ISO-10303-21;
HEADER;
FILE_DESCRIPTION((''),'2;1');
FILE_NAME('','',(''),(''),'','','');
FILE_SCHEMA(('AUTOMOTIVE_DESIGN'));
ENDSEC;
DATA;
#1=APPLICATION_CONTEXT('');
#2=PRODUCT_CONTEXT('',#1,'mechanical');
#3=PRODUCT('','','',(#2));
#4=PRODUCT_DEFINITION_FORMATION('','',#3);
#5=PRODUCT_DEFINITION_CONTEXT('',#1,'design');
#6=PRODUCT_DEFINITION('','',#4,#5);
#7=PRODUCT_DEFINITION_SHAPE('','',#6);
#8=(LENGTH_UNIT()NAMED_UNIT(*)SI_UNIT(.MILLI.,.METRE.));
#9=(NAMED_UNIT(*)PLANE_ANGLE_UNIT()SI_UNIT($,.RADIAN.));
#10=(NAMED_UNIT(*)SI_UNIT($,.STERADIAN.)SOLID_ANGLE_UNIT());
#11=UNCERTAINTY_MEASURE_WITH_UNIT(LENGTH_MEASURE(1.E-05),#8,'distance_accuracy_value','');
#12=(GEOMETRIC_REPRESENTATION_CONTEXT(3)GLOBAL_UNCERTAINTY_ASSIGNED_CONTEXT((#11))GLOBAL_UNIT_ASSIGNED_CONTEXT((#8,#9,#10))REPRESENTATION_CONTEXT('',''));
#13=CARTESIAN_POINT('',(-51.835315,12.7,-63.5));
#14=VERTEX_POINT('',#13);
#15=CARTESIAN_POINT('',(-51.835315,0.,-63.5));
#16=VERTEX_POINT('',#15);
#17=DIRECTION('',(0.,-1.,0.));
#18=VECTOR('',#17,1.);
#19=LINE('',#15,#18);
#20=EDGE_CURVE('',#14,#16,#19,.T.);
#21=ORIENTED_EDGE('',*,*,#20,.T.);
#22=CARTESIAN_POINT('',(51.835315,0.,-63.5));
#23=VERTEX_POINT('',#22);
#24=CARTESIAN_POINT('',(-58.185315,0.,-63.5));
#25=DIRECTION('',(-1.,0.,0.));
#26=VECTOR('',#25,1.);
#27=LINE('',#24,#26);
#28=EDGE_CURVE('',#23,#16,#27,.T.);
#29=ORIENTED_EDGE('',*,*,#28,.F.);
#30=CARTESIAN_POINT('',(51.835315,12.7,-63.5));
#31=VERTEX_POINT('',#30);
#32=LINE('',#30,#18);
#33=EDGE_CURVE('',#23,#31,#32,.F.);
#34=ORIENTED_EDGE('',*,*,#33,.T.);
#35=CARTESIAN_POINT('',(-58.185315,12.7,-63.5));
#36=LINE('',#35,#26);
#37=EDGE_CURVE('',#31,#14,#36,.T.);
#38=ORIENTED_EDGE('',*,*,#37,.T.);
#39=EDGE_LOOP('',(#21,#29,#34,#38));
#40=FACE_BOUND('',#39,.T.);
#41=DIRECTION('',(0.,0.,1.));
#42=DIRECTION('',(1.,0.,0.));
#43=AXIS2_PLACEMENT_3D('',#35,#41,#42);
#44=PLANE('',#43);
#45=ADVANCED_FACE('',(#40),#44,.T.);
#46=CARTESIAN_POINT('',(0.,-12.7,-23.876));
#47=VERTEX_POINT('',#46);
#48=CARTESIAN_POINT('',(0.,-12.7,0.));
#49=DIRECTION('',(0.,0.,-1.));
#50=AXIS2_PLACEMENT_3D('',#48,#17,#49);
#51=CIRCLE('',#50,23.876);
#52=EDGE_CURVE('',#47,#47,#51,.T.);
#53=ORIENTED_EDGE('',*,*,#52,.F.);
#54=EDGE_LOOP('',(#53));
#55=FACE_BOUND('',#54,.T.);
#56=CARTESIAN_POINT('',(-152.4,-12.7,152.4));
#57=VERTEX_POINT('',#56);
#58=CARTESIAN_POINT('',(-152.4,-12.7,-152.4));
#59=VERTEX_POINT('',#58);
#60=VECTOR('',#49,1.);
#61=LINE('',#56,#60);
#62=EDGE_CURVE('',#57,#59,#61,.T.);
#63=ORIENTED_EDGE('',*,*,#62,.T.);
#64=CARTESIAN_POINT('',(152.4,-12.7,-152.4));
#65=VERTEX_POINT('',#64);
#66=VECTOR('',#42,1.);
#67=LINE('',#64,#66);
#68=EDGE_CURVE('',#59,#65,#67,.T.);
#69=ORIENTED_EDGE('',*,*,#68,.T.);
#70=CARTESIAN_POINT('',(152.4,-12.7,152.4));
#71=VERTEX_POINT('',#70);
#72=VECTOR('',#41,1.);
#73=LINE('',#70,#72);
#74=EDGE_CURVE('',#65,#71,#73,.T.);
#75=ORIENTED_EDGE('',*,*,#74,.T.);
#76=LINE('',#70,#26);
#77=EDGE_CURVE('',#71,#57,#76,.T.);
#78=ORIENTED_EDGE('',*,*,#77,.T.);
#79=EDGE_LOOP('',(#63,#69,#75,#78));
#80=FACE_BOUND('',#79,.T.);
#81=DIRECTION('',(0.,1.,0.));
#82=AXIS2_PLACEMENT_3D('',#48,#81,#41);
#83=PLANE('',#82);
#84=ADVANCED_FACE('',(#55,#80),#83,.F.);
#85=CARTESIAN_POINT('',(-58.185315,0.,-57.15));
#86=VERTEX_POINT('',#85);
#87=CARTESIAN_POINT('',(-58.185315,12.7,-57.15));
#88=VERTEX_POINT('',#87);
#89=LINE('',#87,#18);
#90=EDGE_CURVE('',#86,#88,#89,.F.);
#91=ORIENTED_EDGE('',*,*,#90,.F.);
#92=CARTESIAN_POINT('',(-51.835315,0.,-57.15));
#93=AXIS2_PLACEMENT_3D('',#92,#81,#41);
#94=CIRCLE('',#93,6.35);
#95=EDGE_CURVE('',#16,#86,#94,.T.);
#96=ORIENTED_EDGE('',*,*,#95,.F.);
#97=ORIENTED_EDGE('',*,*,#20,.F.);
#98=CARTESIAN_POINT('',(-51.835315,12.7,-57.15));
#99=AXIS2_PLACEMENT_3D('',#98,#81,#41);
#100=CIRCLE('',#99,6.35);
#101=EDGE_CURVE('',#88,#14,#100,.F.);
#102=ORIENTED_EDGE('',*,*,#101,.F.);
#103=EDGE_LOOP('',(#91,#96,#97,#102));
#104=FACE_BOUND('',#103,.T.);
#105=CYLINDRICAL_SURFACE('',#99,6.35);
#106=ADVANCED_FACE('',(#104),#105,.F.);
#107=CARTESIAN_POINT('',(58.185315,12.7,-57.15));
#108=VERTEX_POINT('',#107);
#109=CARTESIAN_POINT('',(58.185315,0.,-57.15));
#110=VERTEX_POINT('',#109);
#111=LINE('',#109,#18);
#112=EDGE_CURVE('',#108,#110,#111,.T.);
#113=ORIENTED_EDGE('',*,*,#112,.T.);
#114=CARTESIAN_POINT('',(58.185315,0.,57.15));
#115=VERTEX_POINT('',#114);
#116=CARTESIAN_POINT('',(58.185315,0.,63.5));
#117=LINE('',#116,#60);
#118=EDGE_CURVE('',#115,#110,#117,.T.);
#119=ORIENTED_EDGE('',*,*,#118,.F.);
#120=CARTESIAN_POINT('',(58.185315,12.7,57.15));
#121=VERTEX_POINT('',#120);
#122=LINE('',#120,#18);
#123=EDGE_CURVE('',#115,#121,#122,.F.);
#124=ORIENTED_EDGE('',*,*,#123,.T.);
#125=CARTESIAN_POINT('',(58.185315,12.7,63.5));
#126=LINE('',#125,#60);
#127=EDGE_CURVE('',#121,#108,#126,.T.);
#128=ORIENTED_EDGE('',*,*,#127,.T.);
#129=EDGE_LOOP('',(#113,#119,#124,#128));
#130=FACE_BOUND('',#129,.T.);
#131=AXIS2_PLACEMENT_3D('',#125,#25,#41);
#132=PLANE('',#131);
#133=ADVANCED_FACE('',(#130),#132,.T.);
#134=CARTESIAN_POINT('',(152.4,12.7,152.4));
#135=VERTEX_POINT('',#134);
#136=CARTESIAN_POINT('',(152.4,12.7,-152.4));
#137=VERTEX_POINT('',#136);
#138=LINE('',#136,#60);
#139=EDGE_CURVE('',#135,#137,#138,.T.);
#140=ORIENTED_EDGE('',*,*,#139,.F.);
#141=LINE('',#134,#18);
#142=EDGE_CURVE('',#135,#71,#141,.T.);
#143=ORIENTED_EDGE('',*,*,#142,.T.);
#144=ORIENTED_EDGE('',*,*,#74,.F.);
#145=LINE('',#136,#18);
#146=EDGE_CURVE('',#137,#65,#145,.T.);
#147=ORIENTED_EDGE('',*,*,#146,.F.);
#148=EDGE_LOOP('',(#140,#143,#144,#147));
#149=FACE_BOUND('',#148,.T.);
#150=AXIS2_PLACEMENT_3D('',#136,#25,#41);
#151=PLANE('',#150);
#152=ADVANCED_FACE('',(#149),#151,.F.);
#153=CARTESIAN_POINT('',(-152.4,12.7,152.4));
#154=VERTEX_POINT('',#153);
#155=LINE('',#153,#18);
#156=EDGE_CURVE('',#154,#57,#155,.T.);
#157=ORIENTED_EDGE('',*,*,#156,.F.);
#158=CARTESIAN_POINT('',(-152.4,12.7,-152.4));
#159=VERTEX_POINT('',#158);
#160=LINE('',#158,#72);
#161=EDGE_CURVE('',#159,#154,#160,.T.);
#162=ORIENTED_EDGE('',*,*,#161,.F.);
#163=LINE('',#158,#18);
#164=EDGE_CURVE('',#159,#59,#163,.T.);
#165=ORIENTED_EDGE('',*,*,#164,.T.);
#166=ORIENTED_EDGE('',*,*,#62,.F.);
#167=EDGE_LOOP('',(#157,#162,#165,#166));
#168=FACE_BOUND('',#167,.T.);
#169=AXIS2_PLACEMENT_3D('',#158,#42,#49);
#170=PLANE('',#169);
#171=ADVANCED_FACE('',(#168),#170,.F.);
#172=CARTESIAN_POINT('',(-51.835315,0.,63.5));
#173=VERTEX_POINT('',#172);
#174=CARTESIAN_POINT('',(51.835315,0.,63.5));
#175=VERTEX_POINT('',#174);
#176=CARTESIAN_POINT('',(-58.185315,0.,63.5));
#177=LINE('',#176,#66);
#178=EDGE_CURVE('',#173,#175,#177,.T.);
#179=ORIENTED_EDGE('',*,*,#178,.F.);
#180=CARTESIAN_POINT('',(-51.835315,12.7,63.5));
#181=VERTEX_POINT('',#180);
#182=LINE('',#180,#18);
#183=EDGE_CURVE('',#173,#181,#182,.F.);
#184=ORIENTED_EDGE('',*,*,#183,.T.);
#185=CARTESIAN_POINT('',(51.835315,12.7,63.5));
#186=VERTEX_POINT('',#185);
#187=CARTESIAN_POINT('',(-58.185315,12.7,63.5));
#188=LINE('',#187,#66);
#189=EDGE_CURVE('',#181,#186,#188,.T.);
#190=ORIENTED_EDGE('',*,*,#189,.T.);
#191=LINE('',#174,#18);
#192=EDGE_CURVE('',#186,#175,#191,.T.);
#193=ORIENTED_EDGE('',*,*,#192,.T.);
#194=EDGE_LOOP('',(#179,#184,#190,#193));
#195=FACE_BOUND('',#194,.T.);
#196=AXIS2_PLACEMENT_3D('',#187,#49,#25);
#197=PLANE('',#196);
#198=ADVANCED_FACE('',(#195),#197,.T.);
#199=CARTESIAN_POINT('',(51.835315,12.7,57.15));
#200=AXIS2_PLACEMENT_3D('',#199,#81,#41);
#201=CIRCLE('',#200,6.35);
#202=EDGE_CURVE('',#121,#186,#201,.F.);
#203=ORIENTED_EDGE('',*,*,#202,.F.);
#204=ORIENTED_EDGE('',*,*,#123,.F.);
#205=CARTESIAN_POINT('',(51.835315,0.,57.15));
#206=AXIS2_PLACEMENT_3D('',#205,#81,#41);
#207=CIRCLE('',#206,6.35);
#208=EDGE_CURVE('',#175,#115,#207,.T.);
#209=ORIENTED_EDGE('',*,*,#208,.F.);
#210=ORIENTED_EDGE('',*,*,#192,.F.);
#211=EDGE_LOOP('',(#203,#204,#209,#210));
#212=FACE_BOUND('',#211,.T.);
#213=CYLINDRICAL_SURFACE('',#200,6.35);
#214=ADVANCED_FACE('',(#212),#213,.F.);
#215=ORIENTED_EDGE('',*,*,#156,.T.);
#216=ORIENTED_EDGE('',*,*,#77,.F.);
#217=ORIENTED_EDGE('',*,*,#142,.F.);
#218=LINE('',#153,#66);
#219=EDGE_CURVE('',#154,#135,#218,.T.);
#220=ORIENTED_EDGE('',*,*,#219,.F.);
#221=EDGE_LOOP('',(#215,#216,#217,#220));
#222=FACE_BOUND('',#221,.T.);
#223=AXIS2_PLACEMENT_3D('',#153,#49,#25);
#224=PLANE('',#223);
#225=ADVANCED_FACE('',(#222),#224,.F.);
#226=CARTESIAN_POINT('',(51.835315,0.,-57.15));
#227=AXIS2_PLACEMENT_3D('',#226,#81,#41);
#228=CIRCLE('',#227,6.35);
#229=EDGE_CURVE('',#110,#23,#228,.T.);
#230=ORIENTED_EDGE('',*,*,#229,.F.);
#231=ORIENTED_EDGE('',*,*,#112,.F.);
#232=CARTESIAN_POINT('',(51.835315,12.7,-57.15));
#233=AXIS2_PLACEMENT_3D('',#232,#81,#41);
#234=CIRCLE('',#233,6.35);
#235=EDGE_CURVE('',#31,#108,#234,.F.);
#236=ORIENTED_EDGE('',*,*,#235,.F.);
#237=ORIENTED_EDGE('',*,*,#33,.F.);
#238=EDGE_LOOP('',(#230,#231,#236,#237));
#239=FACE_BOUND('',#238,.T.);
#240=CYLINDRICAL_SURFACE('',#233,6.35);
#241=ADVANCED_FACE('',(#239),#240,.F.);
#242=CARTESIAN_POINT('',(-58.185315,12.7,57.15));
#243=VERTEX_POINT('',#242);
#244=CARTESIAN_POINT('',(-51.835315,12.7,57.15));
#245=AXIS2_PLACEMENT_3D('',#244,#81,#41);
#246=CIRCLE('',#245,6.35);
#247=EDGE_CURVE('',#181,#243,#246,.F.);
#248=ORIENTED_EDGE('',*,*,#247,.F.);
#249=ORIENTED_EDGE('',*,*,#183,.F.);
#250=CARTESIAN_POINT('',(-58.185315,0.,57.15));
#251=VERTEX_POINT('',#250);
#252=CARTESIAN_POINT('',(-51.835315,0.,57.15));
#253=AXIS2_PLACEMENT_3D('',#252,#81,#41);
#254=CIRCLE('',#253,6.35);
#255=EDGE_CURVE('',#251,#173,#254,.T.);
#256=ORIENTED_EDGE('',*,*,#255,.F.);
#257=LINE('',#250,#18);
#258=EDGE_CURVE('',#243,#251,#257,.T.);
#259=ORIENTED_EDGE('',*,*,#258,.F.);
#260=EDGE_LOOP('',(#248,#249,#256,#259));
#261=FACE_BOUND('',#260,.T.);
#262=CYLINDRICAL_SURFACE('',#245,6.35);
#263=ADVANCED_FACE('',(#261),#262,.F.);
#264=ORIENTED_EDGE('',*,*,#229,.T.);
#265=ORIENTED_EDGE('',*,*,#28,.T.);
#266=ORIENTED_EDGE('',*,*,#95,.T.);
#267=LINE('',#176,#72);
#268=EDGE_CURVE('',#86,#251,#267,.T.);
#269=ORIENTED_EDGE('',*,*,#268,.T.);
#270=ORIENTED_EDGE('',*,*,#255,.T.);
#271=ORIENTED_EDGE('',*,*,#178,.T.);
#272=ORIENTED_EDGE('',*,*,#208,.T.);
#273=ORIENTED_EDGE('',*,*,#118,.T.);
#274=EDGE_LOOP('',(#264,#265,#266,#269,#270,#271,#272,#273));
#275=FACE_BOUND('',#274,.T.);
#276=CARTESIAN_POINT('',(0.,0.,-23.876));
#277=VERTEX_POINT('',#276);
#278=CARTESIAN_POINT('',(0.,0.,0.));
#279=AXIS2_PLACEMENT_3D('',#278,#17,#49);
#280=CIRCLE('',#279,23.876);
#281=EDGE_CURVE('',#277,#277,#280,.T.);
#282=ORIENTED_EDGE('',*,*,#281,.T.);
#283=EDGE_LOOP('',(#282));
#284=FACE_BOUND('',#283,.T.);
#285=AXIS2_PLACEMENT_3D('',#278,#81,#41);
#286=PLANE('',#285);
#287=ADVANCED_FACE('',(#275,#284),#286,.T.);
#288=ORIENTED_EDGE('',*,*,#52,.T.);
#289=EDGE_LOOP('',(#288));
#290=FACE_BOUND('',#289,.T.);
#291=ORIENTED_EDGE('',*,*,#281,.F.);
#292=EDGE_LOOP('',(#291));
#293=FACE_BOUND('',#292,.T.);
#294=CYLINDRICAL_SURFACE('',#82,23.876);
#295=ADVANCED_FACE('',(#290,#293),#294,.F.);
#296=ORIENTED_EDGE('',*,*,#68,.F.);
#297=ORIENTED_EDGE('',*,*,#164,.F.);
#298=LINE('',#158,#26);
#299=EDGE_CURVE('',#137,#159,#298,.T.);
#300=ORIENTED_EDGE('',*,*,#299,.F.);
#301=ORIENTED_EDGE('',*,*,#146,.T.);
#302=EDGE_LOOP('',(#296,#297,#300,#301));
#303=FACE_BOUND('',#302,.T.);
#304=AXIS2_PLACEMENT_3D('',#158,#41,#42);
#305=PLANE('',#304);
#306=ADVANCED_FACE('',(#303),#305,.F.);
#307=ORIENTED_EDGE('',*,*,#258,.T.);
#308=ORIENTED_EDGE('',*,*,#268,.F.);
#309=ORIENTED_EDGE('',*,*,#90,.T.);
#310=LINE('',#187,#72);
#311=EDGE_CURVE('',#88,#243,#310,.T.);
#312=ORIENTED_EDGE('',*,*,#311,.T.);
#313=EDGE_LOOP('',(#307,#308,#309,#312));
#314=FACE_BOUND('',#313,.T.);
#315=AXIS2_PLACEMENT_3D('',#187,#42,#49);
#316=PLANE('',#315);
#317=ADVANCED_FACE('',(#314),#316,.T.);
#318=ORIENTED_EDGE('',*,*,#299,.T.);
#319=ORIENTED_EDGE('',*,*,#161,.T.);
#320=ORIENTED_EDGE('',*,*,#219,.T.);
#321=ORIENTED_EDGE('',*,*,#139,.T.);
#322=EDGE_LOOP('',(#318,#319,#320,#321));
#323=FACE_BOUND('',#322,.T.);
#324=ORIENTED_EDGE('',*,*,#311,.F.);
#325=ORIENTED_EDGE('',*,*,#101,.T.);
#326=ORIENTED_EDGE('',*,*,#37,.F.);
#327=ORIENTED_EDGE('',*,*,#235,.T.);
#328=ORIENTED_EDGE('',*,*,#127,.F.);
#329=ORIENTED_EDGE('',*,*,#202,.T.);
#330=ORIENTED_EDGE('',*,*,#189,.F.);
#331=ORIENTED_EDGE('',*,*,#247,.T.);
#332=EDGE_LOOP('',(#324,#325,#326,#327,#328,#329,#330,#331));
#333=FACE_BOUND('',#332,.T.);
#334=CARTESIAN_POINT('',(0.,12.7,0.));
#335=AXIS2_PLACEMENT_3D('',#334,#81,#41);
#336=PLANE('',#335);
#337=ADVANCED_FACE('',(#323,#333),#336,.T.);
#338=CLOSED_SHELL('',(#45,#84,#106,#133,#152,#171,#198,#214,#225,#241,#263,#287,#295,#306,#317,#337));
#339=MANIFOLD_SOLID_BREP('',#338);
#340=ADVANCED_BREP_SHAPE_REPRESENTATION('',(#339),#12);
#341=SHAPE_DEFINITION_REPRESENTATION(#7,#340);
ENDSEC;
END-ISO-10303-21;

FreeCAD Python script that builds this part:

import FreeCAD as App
import Part
import Sketcher
Q = App.Units.Quantity


def edges_at(feature, points):
    """Names of the edges that pass closest to the given points."""
    edges = feature.Shape.Edges
    near = lambda p: min(range(len(edges)), key=lambda i: edges[i].distToShape(Part.Vertex(*p))[0])
    return sorted({f"Edge{near(p) + 1}" for p in points})

doc = App.newDocument("Part")
body = doc.addObject("PartDesign::Body", "Body")

# Sketch on XZ plane
sketch1 = body.newObject("Sketcher::SketchObject", "Sketch")
sketch1.AttachmentSupport = (doc.getObject("XZ_Plane"), [""])
sketch1.MapMode = "FlatFace"
sketch1.addGeometry([
    Part.LineSegment(App.Vector(-152.4, -152.4, 0), App.Vector(-152.4, 152.4, 0)),  # 0
    Part.LineSegment(App.Vector(-152.4, 152.4, 0), App.Vector(152.4, 152.4, 0)),  # 1
    Part.LineSegment(App.Vector(152.4, 152.4, 0), App.Vector(152.4, -152.4, 0)),  # 2
    Part.LineSegment(App.Vector(152.4, -152.4, 0), App.Vector(-152.4, -152.4, 0)),  # 3
    Part.LineSegment(App.Vector(58.185315, 63.5, 0), App.Vector(-58.185315, 63.5, 0)),  # 4
    Part.LineSegment(App.Vector(-58.185315, 63.5, 0), App.Vector(-58.185315, -63.5, 0)),  # 5
    Part.LineSegment(App.Vector(-58.185315, -63.5, 0), App.Vector(58.185315, -63.5, 0)),  # 6
    Part.LineSegment(App.Vector(58.185315, -63.5, 0), App.Vector(58.185315, 63.5, 0)),  # 7
], False)
sketch1.addConstraint([
    Sketcher.Constraint("Coincident", 0, 2, 1, 1),
    Sketcher.Constraint("Coincident", 1, 2, 2, 1),
    Sketcher.Constraint("Coincident", 2, 2, 3, 1),
    Sketcher.Constraint("Coincident", 3, 2, 0, 1),
    Sketcher.Constraint("Coincident", 4, 2, 5, 1),
    Sketcher.Constraint("Coincident", 5, 2, 6, 1),
    Sketcher.Constraint("Coincident", 6, 2, 7, 1),
    Sketcher.Constraint("Coincident", 7, 2, 4, 1),
    Sketcher.Constraint("Vertical", 0),
    Sketcher.Constraint("Horizontal", 1),
    Sketcher.Constraint("Vertical", 2),
    Sketcher.Constraint("Horizontal", 3),
    Sketcher.Constraint("Horizontal", 4),
    Sketcher.Constraint("Vertical", 5),
    Sketcher.Constraint("Horizontal", 6),
    Sketcher.Constraint("Vertical", 7),
    Sketcher.Constraint("Symmetric", 0, 2, 2, 2, -1, 1),
    Sketcher.Constraint("Symmetric", 4, 2, 6, 2, -1, 1),
    Sketcher.Constraint("Equal", 3, 0),
    Sketcher.Constraint("DistanceX", 1, 1, 1, 2, Q("12 in")),
    Sketcher.Constraint("DistanceY", 5, 2, 5, 1, Q("5 in")),
    Sketcher.Constraint("DistanceX", 4, 2, 4, 1, Q("116.370631 mm")),
])
pad1 = body.newObject("PartDesign::Pad", "Pad")
pad1.Profile = sketch1
pad1.Length = Q("0.5 in")
pad1.Reversed = True
doc.recompute()

fillet = body.newObject("PartDesign::Fillet", "Fillet")
fillet.Base = (pad1, edges_at(pad1, [
    (58.185, 6.35, 63.5),
    (58.185, 6.35, -63.5),
    (-58.185, 6.35, -63.5),
    (-58.185, 6.35, 63.5),
]))
fillet.Radius = Q("0.25 in")

# Sketch on XZ plane
sketch2 = body.newObject("Sketcher::SketchObject", "Sketch001")
sketch2.AttachmentSupport = (doc.getObject("XZ_Plane"), [""])
sketch2.MapMode = "FlatFace"
sketch2.addGeometry([
    Part.LineSegment(App.Vector(-152.4, 152.4, 0), App.Vector(-152.4, -152.4, 0)),  # 0
    Part.LineSegment(App.Vector(-152.4, -152.4, 0), App.Vector(152.4, -152.4, 0)),  # 1
    Part.LineSegment(App.Vector(152.4, -152.4, 0), App.Vector(152.4, 152.4, 0)),  # 2
    Part.LineSegment(App.Vector(152.4, 152.4, 0), App.Vector(-152.4, 152.4, 0)),  # 3
    Part.Circle(App.Vector(0, 0, 0), App.Vector(0, 0, 1), 23.876),  # 4
], False)
sketch2.addConstraint([
    Sketcher.Constraint("Coincident", 0, 2, 1, 1),
    Sketcher.Constraint("Coincident", 1, 2, 2, 1),
    Sketcher.Constraint("Coincident", 2, 2, 3, 1),
    Sketcher.Constraint("Coincident", 3, 2, 0, 1),
    Sketcher.Constraint("Vertical", 0),
    Sketcher.Constraint("Horizontal", 1),
    Sketcher.Constraint("Vertical", 2),
    Sketcher.Constraint("Horizontal", 3),
    Sketcher.Constraint("Coincident", 4, 3, -1, 1),
    Sketcher.Constraint("Symmetric", 0, 2, 2, 2, -1, 1),
    Sketcher.Constraint("Equal", 3, 0),
    Sketcher.Constraint("Diameter", 4, Q("1.88 in")),
    Sketcher.Constraint("DistanceX", 1, 1, 1, 2, Q("12 in")),
])
pad2 = body.newObject("PartDesign::Pad", "Pad001")
pad2.Profile = sketch2
pad2.Length = Q("0.5 in")

doc.recompute()
